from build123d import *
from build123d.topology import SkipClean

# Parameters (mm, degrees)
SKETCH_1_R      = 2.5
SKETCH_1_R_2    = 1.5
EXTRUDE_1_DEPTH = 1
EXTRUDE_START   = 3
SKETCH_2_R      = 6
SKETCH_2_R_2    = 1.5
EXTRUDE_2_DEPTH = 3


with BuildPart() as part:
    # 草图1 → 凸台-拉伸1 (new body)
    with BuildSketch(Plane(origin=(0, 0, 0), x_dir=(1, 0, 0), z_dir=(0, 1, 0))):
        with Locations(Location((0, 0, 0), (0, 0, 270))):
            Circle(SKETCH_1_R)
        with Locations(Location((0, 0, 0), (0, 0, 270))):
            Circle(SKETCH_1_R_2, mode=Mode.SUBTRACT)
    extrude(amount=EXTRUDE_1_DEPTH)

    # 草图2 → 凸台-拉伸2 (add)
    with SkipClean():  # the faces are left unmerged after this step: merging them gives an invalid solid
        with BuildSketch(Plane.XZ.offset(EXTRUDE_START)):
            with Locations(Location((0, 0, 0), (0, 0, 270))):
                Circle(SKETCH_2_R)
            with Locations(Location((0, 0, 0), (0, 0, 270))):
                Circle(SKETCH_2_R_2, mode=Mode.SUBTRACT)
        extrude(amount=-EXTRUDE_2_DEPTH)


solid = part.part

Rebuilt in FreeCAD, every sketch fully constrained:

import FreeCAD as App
import Part
import Sketcher
Q = App.Units.Quantity

doc = App.newDocument("Part")
body = doc.addObject("PartDesign::Body", "Body")

# Sketch on XZ plane
sketch1 = body.newObject("Sketcher::SketchObject", "Sketch")
sketch1.AttachmentSupport = (doc.getObject("XZ_Plane"), [""])
sketch1.MapMode = "FlatFace"
sketch1.addGeometry([
    Part.Circle(App.Vector(0, 0, 0), App.Vector(0, 0, 1), 2.5),
    Part.Circle(App.Vector(0, 0, 0), App.Vector(0, 0, 1), 1.5),
], False)
sketch1.addConstraint([
    Sketcher.Constraint("Coincident", 0, 3, -1, 1),
    Sketcher.Constraint("Coincident", 1, 3, -1, 1),
    Sketcher.Constraint("Diameter", 0, Q("5 mm")),
    Sketcher.Constraint("Diameter", 1, Q("3 mm")),
])
pad1 = body.newObject("PartDesign::Pad", "Pad")
pad1.Profile = sketch1
pad1.Length = 1
pad1.Reversed = True

# Sketch on XZ plane
sketch2 = body.newObject("Sketcher::SketchObject", "Sketch001")
sketch2.AttachmentSupport = (doc.getObject("XZ_Plane"), [""])
sketch2.MapMode = "FlatFace"
sketch2.AttachmentOffset = App.Placement(App.Vector(0, 0, 3), App.Rotation())
sketch2.addGeometry([
    Part.Circle(App.Vector(0, 0, 0), App.Vector(0, 0, 1), 6),
    Part.Circle(App.Vector(0, 0, 0), App.Vector(0, 0, 1), 1.5),
], False)
sketch2.addConstraint([
    Sketcher.Constraint("Coincident", 0, 3, -1, 1),
    Sketcher.Constraint("Coincident", 1, 3, -1, 1),
    Sketcher.Constraint("Diameter", 0, Q("12 mm")),
    Sketcher.Constraint("Diameter", 1, Q("3 mm")),
])
pad2 = body.newObject("PartDesign::Pad", "Pad001")
pad2.Profile = sketch2
pad2.Length = 3
pad2.Reversed = True

doc.recompute()
